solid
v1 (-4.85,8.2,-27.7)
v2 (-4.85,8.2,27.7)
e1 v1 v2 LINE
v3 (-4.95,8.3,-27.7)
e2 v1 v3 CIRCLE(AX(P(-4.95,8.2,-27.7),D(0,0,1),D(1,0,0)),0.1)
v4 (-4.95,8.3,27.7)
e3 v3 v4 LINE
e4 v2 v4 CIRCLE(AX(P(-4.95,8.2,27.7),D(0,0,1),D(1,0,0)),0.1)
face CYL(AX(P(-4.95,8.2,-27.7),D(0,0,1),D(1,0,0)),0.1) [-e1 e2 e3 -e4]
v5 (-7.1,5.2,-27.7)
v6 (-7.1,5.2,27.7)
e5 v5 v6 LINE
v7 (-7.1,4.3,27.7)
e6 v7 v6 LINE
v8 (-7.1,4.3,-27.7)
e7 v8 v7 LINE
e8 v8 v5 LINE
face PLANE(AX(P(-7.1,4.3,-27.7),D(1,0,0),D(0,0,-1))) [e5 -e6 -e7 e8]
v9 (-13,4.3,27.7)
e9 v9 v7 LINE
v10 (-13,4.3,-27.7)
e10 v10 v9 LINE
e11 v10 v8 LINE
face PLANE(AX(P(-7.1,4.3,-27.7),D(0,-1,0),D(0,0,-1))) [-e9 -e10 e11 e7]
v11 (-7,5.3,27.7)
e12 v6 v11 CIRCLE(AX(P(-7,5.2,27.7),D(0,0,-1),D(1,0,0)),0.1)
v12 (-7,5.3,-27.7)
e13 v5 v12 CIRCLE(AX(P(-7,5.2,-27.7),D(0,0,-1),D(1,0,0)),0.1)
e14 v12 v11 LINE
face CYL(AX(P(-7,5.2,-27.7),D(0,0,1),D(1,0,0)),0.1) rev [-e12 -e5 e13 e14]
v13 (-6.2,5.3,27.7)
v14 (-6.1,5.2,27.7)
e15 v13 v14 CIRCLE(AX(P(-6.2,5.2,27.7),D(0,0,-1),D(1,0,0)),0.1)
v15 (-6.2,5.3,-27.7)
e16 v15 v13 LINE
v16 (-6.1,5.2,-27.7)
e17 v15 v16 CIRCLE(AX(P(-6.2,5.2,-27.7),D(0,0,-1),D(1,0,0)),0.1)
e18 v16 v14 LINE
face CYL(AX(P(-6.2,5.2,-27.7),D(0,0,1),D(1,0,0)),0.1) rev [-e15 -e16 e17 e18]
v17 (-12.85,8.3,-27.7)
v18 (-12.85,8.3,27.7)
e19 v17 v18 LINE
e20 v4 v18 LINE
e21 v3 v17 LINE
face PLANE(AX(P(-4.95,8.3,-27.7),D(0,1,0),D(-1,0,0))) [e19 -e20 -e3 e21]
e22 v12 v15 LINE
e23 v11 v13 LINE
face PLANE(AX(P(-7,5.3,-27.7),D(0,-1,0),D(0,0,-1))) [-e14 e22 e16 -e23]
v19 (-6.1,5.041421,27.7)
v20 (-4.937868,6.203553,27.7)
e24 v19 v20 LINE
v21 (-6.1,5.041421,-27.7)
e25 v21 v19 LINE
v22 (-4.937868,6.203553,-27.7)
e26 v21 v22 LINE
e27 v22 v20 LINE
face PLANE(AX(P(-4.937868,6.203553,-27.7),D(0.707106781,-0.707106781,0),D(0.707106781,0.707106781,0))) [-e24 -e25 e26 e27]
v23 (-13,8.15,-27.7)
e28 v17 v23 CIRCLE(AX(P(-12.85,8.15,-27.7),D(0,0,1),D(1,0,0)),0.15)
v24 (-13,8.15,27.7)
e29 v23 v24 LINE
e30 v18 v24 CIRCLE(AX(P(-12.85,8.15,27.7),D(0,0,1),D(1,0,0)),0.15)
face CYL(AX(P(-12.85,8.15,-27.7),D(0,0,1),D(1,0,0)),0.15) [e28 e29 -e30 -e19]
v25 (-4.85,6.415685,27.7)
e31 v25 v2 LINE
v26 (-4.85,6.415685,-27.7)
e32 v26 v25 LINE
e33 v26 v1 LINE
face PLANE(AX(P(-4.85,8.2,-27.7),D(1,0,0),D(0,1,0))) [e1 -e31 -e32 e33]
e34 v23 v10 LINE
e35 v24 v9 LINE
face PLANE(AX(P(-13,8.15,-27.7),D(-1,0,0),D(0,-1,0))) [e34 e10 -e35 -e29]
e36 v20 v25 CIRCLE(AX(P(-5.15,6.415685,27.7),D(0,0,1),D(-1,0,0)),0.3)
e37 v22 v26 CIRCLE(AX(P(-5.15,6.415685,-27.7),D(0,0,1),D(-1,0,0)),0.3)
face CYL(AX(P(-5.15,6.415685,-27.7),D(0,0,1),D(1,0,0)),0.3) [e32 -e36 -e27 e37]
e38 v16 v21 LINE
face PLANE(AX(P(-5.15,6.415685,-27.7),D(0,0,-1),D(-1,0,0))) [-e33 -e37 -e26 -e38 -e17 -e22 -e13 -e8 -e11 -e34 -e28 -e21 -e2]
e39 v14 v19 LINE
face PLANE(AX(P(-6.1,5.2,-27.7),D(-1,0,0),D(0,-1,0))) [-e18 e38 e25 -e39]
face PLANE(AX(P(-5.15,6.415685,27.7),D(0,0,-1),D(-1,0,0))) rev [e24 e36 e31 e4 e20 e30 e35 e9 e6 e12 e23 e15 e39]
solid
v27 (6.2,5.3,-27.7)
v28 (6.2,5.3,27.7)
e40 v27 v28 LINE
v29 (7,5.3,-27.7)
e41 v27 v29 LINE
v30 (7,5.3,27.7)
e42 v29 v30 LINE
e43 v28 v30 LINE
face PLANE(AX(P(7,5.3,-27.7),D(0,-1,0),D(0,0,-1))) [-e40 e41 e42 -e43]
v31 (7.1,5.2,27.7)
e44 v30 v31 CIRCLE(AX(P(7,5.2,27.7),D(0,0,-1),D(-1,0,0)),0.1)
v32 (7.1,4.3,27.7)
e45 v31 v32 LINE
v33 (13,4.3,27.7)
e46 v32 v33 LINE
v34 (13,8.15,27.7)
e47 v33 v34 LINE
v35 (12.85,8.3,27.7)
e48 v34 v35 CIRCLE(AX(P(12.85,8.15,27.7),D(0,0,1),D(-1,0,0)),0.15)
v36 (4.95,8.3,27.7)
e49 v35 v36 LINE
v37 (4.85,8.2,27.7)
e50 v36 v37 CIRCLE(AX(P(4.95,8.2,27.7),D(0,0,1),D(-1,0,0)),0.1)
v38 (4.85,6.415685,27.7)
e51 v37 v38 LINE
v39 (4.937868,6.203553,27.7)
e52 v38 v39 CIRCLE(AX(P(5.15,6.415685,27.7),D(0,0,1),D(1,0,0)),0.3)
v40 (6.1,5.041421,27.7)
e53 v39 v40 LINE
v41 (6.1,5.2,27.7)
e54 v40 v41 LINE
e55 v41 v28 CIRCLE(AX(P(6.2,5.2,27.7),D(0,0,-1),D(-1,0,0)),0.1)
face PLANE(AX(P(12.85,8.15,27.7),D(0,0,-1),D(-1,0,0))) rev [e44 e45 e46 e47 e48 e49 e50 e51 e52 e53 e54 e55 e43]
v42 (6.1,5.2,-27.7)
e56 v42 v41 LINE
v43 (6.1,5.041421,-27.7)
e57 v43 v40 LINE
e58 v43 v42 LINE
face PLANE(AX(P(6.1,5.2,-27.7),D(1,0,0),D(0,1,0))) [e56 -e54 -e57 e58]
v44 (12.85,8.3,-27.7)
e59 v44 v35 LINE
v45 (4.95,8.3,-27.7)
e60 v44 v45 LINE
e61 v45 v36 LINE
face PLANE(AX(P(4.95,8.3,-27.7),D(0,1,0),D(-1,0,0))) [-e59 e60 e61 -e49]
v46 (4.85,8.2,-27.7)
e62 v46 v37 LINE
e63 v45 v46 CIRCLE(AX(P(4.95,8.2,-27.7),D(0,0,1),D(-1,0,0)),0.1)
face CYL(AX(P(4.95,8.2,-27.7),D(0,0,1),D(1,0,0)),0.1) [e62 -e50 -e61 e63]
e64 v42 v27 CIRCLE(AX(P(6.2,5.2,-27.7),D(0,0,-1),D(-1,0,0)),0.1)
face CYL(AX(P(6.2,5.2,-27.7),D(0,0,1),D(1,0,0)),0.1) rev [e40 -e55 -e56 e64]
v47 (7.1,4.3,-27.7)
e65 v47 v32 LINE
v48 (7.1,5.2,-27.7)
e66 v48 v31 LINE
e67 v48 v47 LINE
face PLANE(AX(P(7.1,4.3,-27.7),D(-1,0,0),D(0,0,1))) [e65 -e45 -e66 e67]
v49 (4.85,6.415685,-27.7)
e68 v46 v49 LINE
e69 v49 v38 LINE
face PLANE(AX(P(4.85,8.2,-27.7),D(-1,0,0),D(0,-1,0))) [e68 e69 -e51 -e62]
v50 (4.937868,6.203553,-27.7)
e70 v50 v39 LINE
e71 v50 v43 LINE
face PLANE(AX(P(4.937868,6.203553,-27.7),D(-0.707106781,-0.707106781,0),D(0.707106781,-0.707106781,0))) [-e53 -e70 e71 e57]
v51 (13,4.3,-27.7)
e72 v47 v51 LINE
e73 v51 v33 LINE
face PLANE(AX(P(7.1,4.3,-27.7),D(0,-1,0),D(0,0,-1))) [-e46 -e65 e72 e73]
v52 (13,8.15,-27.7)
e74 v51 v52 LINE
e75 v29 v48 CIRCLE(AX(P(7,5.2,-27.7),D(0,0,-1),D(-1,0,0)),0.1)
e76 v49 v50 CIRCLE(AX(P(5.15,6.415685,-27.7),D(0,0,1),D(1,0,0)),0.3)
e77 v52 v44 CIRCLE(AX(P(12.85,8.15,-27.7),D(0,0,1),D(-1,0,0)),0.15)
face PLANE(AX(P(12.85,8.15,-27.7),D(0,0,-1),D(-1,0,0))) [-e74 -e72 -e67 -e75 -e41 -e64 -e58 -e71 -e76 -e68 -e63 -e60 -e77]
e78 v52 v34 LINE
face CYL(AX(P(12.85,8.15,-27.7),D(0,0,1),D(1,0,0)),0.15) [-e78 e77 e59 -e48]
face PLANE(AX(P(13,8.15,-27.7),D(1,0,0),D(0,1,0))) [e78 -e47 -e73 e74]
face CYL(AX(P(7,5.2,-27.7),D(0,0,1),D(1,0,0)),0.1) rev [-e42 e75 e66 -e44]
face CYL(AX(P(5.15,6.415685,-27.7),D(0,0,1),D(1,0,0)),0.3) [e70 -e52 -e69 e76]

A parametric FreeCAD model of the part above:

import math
import FreeCAD as App
import Part
import Sketcher
Q = App.Units.Quantity

doc = App.newDocument("Part")
body = doc.addObject("PartDesign::Body", "Body")

sketch1 = body.newObject("Sketcher::SketchObject", "Sketch")
sketch1.AttachmentSupport = (doc.getObject("XY_Plane"), [""])
sketch1.MapMode = "FlatFace"
sketch1.addGeometry(Part.LineSegment(App.Vector(13, 4.3, 0), App.Vector(13, 8.15, 0)), False)
sketch1.addGeometry(Part.ArcOfCircle(Part.Circle(App.Vector(12.85, 8.15, 0), App.Vector(0, 0, 1), 0.15), math.radians(0), math.radians(90)), False)
sketch1.addGeometry(Part.LineSegment(App.Vector(12.85, 8.3, 0), App.Vector(4.95, 8.3, 0)), False)
sketch1.addGeometry(Part.ArcOfCircle(Part.Circle(App.Vector(4.95, 8.2, 0), App.Vector(0, 0, 1), 0.1), math.radians(90), math.radians(180)), False)
sketch1.addGeometry(Part.LineSegment(App.Vector(4.85, 8.2, 0), App.Vector(4.85, 6.42, 0)), False)
sketch1.addGeometry(Part.ArcOfCircle(Part.Circle(App.Vector(5.15, 6.42, 0), App.Vector(0, 0, 1), 0.3), math.radians(180), math.radians(225)), False)
sketch1.addGeometry(Part.LineSegment(App.Vector(4.94, 6.2, 0), App.Vector(6.1, 5.04, 0)), False)
sketch1.addGeometry(Part.LineSegment(App.Vector(6.1, 5.04, 0), App.Vector(6.1, 5.2, 0)), False)
sketch1.addGeometry(Part.ArcOfCircle(Part.Circle(App.Vector(6.2, 5.2, 0), App.Vector(0, 0, 1), 0.1), math.radians(90), math.radians(180)), False)
sketch1.addGeometry(Part.LineSegment(App.Vector(6.2, 5.3, 0), App.Vector(7, 5.3, 0)), False)
sketch1.addGeometry(Part.ArcOfCircle(Part.Circle(App.Vector(7, 5.2, 0), App.Vector(0, 0, 1), 0.1), math.radians(0), math.radians(90)), False)
sketch1.addGeometry(Part.LineSegment(App.Vector(7.1, 5.2, 0), App.Vector(7.1, 4.3, 0)), False)
sketch1.addGeometry(Part.LineSegment(App.Vector(7.1, 4.3, 0), App.Vector(13, 4.3, 0)), False)
sketch1.addConstraint(Sketcher.Constraint("Tangent", 0, 2, 1, 1))
sketch1.addConstraint(Sketcher.Constraint("Tangent", 1, 2, 2, 1))
sketch1.addConstraint(Sketcher.Constraint("Tangent", 2, 2, 3, 1))
sketch1.addConstraint(Sketcher.Constraint("Tangent", 3, 2, 4, 1))
sketch1.addConstraint(Sketcher.Constraint("Tangent", 4, 2, 5, 1))
sketch1.addConstraint(Sketcher.Constraint("Tangent", 5, 2, 6, 1))
sketch1.addConstraint(Sketcher.Constraint("Coincident", 6, 2, 7, 1))
sketch1.addConstraint(Sketcher.Constraint("Tangent", 7, 2, 8, 2))
sketch1.addConstraint(Sketcher.Constraint("Tangent", 8, 1, 9, 1))
sketch1.addConstraint(Sketcher.Constraint("Tangent", 9, 2, 10, 2))
sketch1.addConstraint(Sketcher.Constraint("Tangent", 10, 1, 11, 1))
sketch1.addConstraint(Sketcher.Constraint("Coincident", 11, 2, 12, 1))
sketch1.addConstraint(Sketcher.Constraint("Coincident", 12, 2, 0, 1))
sketch1.addConstraint(Sketcher.Constraint("Vertical", 0))
sketch1.addConstraint(Sketcher.Constraint("Horizontal", 2))
sketch1.addConstraint(Sketcher.Constraint("Vertical", 4))
sketch1.addConstraint(Sketcher.Constraint("Vertical", 7))
sketch1.addConstraint(Sketcher.Constraint("Horizontal", 9))
sketch1.addConstraint(Sketcher.Constraint("Vertical", 11))
sketch1.addConstraint(Sketcher.Constraint("Horizontal", 12))
sketch1.addConstraint(Sketcher.Constraint("Equal", 3, 8))
sketch1.addConstraint(Sketcher.Constraint("Equal", 8, 10))
sketch1.addConstraint(Sketcher.Constraint("Radius", 3, 0.1))
sketch1.addConstraint(Sketcher.Constraint("Radius", 5, 0.3))
sketch1.addConstraint(Sketcher.Constraint("Angle", 6, Q("-45 deg")))
sketch1.addConstraint(Sketcher.Constraint("Radius", 1, 0.15))
sketch1.addConstraint(Sketcher.Constraint("DistanceX", 2, 2, 2, 1, 7.9))
sketch1.addConstraint(Sketcher.Constraint("DistanceX", 9, 1, 9, 2, 0.8))
sketch1.addConstraint(Sketcher.Constraint("DistanceX", 12, 1, 12, 2, 5.9))
sketch1.addConstraint(Sketcher.Constraint("DistanceY", 11, 2, 11, 1, 0.9))
sketch1.addConstraint(Sketcher.Constraint("DistanceX", -1, 1, 10, 3, 7.0))
sketch1.addConstraint(Sketcher.Constraint("DistanceY", 8, 3, 3, 3, 3.0))
sketch1.addConstraint(Sketcher.Constraint("DistanceY", -1, 1, 3, 3, 8.2))
sketch1.addConstraint(Sketcher.Constraint("DistanceY", 7, 1, 7, 2, 0.158579))
pad1 = body.newObject("PartDesign::Pad", "Pad")
pad1.Profile = sketch1
pad1.Length = 55.4
pad1.Midplane = True
body2 = doc.addObject("PartDesign::Body", "Body001")

sketch2 = body2.newObject("Sketcher::SketchObject", "Sketch001")
sketch2.AttachmentSupport = (doc.getObject("XY_Plane001"), [""])
sketch2.MapMode = "FlatFace"
sketch2.addGeometry(Part.LineSegment(App.Vector(-6.1, 5.04, 0), App.Vector(-4.94, 6.2, 0)), False)
sketch2.addGeometry(Part.ArcOfCircle(Part.Circle(App.Vector(-5.15, 6.42, 0), App.Vector(0, 0, 1), 0.3), math.radians(-45), math.radians(0)), False)
sketch2.addGeometry(Part.LineSegment(App.Vector(-4.85, 6.42, 0), App.Vector(-4.85, 8.2, 0)), False)
sketch2.addGeometry(Part.ArcOfCircle(Part.Circle(App.Vector(-4.95, 8.2, 0), App.Vector(0, 0, 1), 0.1), math.radians(0), math.radians(90)), False)
sketch2.addGeometry(Part.LineSegment(App.Vector(-4.95, 8.3, 0), App.Vector(-12.85, 8.3, 0)), False)
sketch2.addGeometry(Part.ArcOfCircle(Part.Circle(App.Vector(-12.85, 8.15, 0), App.Vector(0, 0, 1), 0.15), math.radians(90), math.radians(180)), False)
sketch2.addGeometry(Part.LineSegment(App.Vector(-13, 8.15, 0), App.Vector(-13, 4.3, 0)), False)
sketch2.addGeometry(Part.LineSegment(App.Vector(-13, 4.3, 0), App.Vector(-7.1, 4.3, 0)), False)
sketch2.addGeometry(Part.LineSegment(App.Vector(-7.1, 4.3, 0), App.Vector(-7.1, 5.2, 0)), False)
sketch2.addGeometry(Part.ArcOfCircle(Part.Circle(App.Vector(-7, 5.2, 0), App.Vector(0, 0, 1), 0.1), math.radians(90), math.radians(180)), False)
sketch2.addGeometry(Part.LineSegment(App.Vector(-7, 5.3, 0), App.Vector(-6.2, 5.3, 0)), False)
sketch2.addGeometry(Part.ArcOfCircle(Part.Circle(App.Vector(-6.2, 5.2, 0), App.Vector(0, 0, 1), 0.1), math.radians(0), math.radians(90)), False)
sketch2.addGeometry(Part.LineSegment(App.Vector(-6.1, 5.2, 0), App.Vector(-6.1, 5.04, 0)), False)
sketch2.addConstraint(Sketcher.Constraint("Tangent", 0, 2, 1, 1))
sketch2.addConstraint(Sketcher.Constraint("Tangent", 1, 2, 2, 1))
sketch2.addConstraint(Sketcher.Constraint("Tangent", 2, 2, 3, 1))
sketch2.addConstraint(Sketcher.Constraint("Tangent", 3, 2, 4, 1))
sketch2.addConstraint(Sketcher.Constraint("Tangent", 4, 2, 5, 1))
sketch2.addConstraint(Sketcher.Constraint("Tangent", 5, 2, 6, 1))
sketch2.addConstraint(Sketcher.Constraint("Coincident", 6, 2, 7, 1))
sketch2.addConstraint(Sketcher.Constraint("Coincident", 7, 2, 8, 1))
sketch2.addConstraint(Sketcher.Constraint("Tangent", 8, 2, 9, 2))
sketch2.addConstraint(Sketcher.Constraint("Tangent", 9, 1, 10, 1))
sketch2.addConstraint(Sketcher.Constraint("Tangent", 10, 2, 11, 2))
sketch2.addConstraint(Sketcher.Constraint("Tangent", 11, 1, 12, 1))
sketch2.addConstraint(Sketcher.Constraint("Coincident", 12, 2, 0, 1))
sketch2.addConstraint(Sketcher.Constraint("Vertical", 2))
sketch2.addConstraint(Sketcher.Constraint("Horizontal", 4))
sketch2.addConstraint(Sketcher.Constraint("Vertical", 6))
sketch2.addConstraint(Sketcher.Constraint("Horizontal", 7))
sketch2.addConstraint(Sketcher.Constraint("Vertical", 8))
sketch2.addConstraint(Sketcher.Constraint("Horizontal", 10))
sketch2.addConstraint(Sketcher.Constraint("Vertical", 12))
sketch2.addConstraint(Sketcher.Constraint("Equal", 3, 9))
sketch2.addConstraint(Sketcher.Constraint("Equal", 9, 11))
sketch2.addConstraint(Sketcher.Constraint("Radius", 1, 0.3))
sketch2.addConstraint(Sketcher.Constraint("Radius", 3, 0.1))
sketch2.addConstraint(Sketcher.Constraint("Angle", 0, Q("45 deg")))
sketch2.addConstraint(Sketcher.Constraint("Radius", 5, 0.15))
sketch2.addConstraint(Sketcher.Constraint("DistanceX", 4, 2, 4, 1, 7.9))
sketch2.addConstraint(Sketcher.Constraint("DistanceX", 7, 1, 7, 2, 5.9))
sketch2.addConstraint(Sketcher.Constraint("DistanceX", 10, 1, 10, 2, 0.8))
sketch2.addConstraint(Sketcher.Constraint("DistanceY", 8, 1, 8, 2, 0.9))
sketch2.addConstraint(Sketcher.Constraint("DistanceX", 9, 3, -1, 1, 7.0))
sketch2.addConstraint(Sketcher.Constraint("DistanceY", 9, 3, 3, 3, 3.0))
sketch2.addConstraint(Sketcher.Constraint("DistanceY", -1, 1, 3, 3, 8.2))
sketch2.addConstraint(Sketcher.Constraint("DistanceY", 12, 2, 12, 1, 0.158579))
pad2 = body2.newObject("PartDesign::Pad", "Pad001")
pad2.Profile = sketch2
pad2.Length = 55.4
pad2.Midplane = True

doc.recompute()
